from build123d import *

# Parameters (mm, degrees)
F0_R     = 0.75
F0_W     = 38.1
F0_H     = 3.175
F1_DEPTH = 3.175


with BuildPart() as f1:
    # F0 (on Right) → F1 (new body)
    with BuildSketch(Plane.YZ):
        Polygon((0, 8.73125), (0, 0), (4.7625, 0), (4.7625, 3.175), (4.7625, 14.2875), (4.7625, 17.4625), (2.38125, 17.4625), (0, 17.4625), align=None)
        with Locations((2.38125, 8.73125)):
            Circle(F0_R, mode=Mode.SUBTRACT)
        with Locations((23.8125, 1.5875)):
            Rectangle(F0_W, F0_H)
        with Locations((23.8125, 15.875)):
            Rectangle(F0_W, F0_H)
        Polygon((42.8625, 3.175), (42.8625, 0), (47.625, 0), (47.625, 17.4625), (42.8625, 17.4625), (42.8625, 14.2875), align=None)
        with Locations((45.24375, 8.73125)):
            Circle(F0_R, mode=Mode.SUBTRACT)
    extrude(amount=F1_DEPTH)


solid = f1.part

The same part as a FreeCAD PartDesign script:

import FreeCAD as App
import Part
import Sketcher
from FreeCAD import Vector
Q = App.Units.Quantity


def add_polygon(sketch, points):
    """Adds a closed chain of lines whose ends are joined by coincident constraints."""
    first, n = sketch.GeometryCount, len(points)
    for a, b in zip(points, points[1:] + points[:1]):
        sketch.addGeometry(Part.LineSegment(App.Vector(*a, 0), App.Vector(*b, 0)), False)
    for i in range(n):
        sketch.addConstraint(Sketcher.Constraint("Coincident", first + i, 2, first + (i + 1) % n, 1))

doc = App.newDocument("Part")
body = doc.addObject("PartDesign::Body", "Body")

# Sketch on YZ plane
sketch1 = doc.addObject("Sketcher::SketchObject", "Sketch")
body.addObject(sketch1)
sketch1.AttachmentSupport = (doc.YZ_Plane, [""])
sketch1.MapMode = "FlatFace"
add_polygon(sketch1, [(0, 0), (47.6, 0), (47.6, 17.5), (0, 17.5)])  # lines 0-3
sketch1.addGeometry(Part.Circle(Vector(2.4, 8.7, 0), Vector(0, 0, 1), 0.8), False)  # 4
add_polygon(sketch1, [(42.9, 3.2), (4.8, 3.2), (4.8, 14.3), (42.9, 14.3)])  # lines 5-8
sketch1.addGeometry(Part.Circle(Vector(45.2, 8.7, 0), Vector(0, 0, 1), 0.8), False)  # 9
sketch1.addConstraint(Sketcher.Constraint("Horizontal", 0))
sketch1.addConstraint(Sketcher.Constraint("Vertical", 1))
sketch1.addConstraint(Sketcher.Constraint("Horizontal", 2))
sketch1.addConstraint(Sketcher.Constraint("Vertical", 3))
sketch1.addConstraint(Sketcher.Constraint("Horizontal", 5))
sketch1.addConstraint(Sketcher.Constraint("Vertical", 6))
sketch1.addConstraint(Sketcher.Constraint("Horizontal", 7))
sketch1.addConstraint(Sketcher.Constraint("Vertical", 8))
sketch1.addConstraint(Sketcher.Constraint("Coincident", 3, 2, -1, 1))
sketch1.addConstraint(Sketcher.Constraint("Equal", 4, 9))
sketch1.addConstraint(Sketcher.Constraint("Horizontal", 4, 3, 9, 3))
sketch1.addConstraint(Sketcher.Constraint("DistanceX", 5, 2, 5, 1, Q("1.5 in")))
sketch1.addConstraint(Sketcher.Constraint("Diameter", 4, 1.5))
sketch1.addConstraint(Sketcher.Constraint("DistanceX", 0, 1, 0, 2, Q("1.875 in")))
sketch1.addConstraint(Sketcher.Constraint("DistanceY", 1, 1, 1, 2, Q("0.6875 in")))
sketch1.addConstraint(Sketcher.Constraint("DistanceY", 6, 1, 6, 2, Q("0.4375 in")))
sketch1.addConstraint(Sketcher.Constraint("DistanceX", -1, 1, 4, 3, Q("0.09375 in")))
sketch1.addConstraint(Sketcher.Constraint("DistanceY", -1, 1, 4, 3, Q("0.34375 in")))
sketch1.addConstraint(Sketcher.Constraint("DistanceX", -1, 1, 9, 3, Q("1.78125 in")))
sketch1.addConstraint(Sketcher.Constraint("DistanceX", -1, 1, 5, 2, Q("0.1875 in")))
sketch1.addConstraint(Sketcher.Constraint("DistanceY", -1, 1, 5, 2, Q("0.125 in")))
pad1 = doc.addObject("PartDesign::Pad", "Pad")
body.addObject(pad1)
pad1.Profile = sketch1
pad1.Length = Q("0.125 in")

doc.recompute()
